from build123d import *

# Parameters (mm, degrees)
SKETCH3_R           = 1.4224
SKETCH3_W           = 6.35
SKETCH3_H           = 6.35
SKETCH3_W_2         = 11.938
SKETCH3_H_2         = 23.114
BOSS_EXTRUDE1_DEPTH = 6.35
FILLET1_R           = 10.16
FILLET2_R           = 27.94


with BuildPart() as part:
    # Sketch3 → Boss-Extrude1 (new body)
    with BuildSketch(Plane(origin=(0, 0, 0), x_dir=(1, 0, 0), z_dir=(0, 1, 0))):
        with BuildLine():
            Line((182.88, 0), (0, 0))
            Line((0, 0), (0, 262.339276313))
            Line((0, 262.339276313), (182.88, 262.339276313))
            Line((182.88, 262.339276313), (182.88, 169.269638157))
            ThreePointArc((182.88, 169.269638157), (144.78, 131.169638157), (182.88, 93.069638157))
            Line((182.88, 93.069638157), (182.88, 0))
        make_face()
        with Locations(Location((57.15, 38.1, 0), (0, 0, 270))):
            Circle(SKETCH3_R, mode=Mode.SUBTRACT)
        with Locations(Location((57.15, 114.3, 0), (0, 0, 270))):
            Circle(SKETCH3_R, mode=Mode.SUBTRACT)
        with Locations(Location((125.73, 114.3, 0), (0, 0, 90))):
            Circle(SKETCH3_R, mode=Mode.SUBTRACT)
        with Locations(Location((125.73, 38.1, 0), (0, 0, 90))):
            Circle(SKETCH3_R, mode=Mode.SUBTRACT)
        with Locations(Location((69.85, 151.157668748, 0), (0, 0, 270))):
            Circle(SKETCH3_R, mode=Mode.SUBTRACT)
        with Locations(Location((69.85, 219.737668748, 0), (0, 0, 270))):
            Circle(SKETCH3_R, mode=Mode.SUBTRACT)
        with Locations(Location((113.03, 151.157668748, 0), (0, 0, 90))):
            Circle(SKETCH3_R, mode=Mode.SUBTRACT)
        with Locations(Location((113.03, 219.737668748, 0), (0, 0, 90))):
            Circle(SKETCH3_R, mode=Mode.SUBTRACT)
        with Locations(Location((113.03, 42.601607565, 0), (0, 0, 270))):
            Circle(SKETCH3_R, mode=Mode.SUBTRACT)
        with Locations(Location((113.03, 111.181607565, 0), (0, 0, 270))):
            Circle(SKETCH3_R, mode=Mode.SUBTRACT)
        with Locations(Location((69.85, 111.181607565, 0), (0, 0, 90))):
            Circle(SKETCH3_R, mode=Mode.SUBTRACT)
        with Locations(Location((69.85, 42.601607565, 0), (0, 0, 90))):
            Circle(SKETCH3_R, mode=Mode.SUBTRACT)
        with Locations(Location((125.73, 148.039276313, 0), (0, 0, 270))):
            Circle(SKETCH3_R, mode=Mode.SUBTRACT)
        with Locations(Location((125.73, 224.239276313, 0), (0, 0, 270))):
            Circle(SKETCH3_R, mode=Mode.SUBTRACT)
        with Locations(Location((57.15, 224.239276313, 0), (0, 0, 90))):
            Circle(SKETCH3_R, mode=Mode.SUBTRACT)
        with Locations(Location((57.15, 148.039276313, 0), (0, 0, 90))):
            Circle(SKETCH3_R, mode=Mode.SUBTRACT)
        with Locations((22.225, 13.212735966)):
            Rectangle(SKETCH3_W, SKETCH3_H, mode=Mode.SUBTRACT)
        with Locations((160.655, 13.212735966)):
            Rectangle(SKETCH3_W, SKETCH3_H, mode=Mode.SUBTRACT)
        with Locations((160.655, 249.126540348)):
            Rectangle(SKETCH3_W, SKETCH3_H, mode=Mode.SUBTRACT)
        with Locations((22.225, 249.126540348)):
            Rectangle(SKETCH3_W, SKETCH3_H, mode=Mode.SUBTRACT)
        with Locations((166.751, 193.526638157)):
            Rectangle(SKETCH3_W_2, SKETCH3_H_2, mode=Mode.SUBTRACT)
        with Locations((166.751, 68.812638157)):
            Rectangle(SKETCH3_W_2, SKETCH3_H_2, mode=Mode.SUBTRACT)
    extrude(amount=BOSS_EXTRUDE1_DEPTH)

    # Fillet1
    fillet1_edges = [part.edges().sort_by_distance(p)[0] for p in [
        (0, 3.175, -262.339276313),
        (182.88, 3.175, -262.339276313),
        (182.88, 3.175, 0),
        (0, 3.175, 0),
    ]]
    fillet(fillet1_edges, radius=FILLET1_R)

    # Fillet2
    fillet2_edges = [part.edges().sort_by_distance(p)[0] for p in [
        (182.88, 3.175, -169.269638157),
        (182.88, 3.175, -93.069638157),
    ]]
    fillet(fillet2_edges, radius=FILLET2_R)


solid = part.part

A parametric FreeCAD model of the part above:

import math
import FreeCAD as App
import Part
import Sketcher
Q = App.Units.Quantity


def edges_at(feature, points):
    """Names of the edges that pass closest to the given points."""
    edges = feature.Shape.Edges
    near = lambda p: min(range(len(edges)), key=lambda i: edges[i].distToShape(Part.Vertex(*p))[0])
    return sorted({f"Edge{near(p) + 1}" for p in points})


def add_polygon(sketch, points):
    """Adds a closed chain of lines whose ends are joined by coincident constraints."""
    first, n = sketch.GeometryCount, len(points)
    for a, b in zip(points, points[1:] + points[:1]):
        sketch.addGeometry(Part.LineSegment(App.Vector(*a, 0), App.Vector(*b, 0)), False)
    for i in range(n):
        sketch.addConstraint(Sketcher.Constraint("Coincident", first + i, 2, first + (i + 1) % n, 1))

doc = App.newDocument("Part")
body = doc.addObject("PartDesign::Body", "Body")

sketch1 = body.newObject("Sketcher::SketchObject", "Sketch")
sketch1.AttachmentSupport = (doc.getObject("XZ_Plane"), [""])
sketch1.MapMode = "FlatFace"
sketch1.addGeometry(Part.LineSegment(App.Vector(0, 0, 0), App.Vector(182.9, 0, 0)), False)
sketch1.addGeometry(Part.LineSegment(App.Vector(182.9, 0, 0), App.Vector(182.9, -93.1, 0)), False)
sketch1.addGeometry(Part.ArcOfCircle(Part.Circle(App.Vector(182.9, -131.2, 0), App.Vector(0, 0, 1), 38.1), math.radians(90), math.radians(270)), False)
sketch1.addGeometry(Part.LineSegment(App.Vector(182.9, -169.3, 0), App.Vector(182.9, -262.3, 0)), False)
sketch1.addGeometry(Part.LineSegment(App.Vector(182.9, -262.3, 0), App.Vector(0, -262.3, 0)), False)
sketch1.addGeometry(Part.LineSegment(App.Vector(0, -262.3, 0), App.Vector(0, 0, 0)), False)
add_polygon(sketch1, [(157.5, -10), (157.5, -16.4), (163.8, -16.4), (163.8, -10)])
add_polygon(sketch1, [(160.8, -57.3), (160.8, -80.4), (172.7, -80.4), (172.7, -57.3)])
sketch1.addGeometry(Part.Circle(App.Vector(125.7, -38.1, 0), App.Vector(0, 0, 1), 1.4), False)
sketch1.addGeometry(Part.Circle(App.Vector(113, -42.6, 0), App.Vector(0, 0, 1), 1.4), False)
sketch1.addGeometry(Part.Circle(App.Vector(125.7, -114.3, 0), App.Vector(0, 0, 1), 1.4), False)
sketch1.addGeometry(Part.Circle(App.Vector(113, -111.2, 0), App.Vector(0, 0, 1), 1.4), False)
sketch1.addGeometry(Part.Circle(App.Vector(69.8, -42.6, 0), App.Vector(0, 0, 1), 1.4), False)
sketch1.addGeometry(Part.Circle(App.Vector(57.1, -38.1, 0), App.Vector(0, 0, 1), 1.4), False)
add_polygon(sketch1, [(19.1, -10), (19.1, -16.4), (25.4, -16.4), (25.4, -10)])
sketch1.addGeometry(Part.Circle(App.Vector(69.8, -111.2, 0), App.Vector(0, 0, 1), 1.4), False)
sketch1.addGeometry(Part.Circle(App.Vector(57.1, -114.3, 0), App.Vector(0, 0, 1), 1.4), False)
sketch1.addGeometry(Part.Circle(App.Vector(125.7, -148, 0), App.Vector(0, 0, 1), 1.4), False)
sketch1.addGeometry(Part.Circle(App.Vector(113, -151.2, 0), App.Vector(0, 0, 1), 1.4), False)
add_polygon(sketch1, [(160.8, -182), (160.8, -205.1), (172.7, -205.1), (172.7, -182)])
add_polygon(sketch1, [(157.5, -246), (157.5, -252.3), (163.8, -252.3), (163.8, -246)])
sketch1.addGeometry(Part.Circle(App.Vector(113, -219.7, 0), App.Vector(0, 0, 1), 1.4), False)
sketch1.addGeometry(Part.Circle(App.Vector(125.7, -224.2, 0), App.Vector(0, 0, 1), 1.4), False)
sketch1.addGeometry(Part.Circle(App.Vector(69.8, -151.2, 0), App.Vector(0, 0, 1), 1.4), False)
sketch1.addGeometry(Part.Circle(App.Vector(57.1, -148, 0), App.Vector(0, 0, 1), 1.4), False)
sketch1.addGeometry(Part.Circle(App.Vector(69.8, -219.7, 0), App.Vector(0, 0, 1), 1.4), False)
sketch1.addGeometry(Part.Circle(App.Vector(57.1, -224.2, 0), App.Vector(0, 0, 1), 1.4), False)
add_polygon(sketch1, [(19.1, -246), (19.1, -252.3), (25.4, -252.3), (25.4, -246)])
sketch1.addConstraint([
    Sketcher.Constraint("Coincident", 0, 2, 1, 1),
    Sketcher.Constraint("Coincident", 1, 2, 2, 1),
    Sketcher.Constraint("Coincident", 2, 2, 3, 1),
    Sketcher.Constraint("Coincident", 3, 2, 4, 1),
    Sketcher.Constraint("Coincident", 4, 2, 5, 1),
    Sketcher.Constraint("Coincident", 5, 2, 0, 1),
    Sketcher.Constraint("Horizontal", 0),
    Sketcher.Constraint("Vertical", 1),
    Sketcher.Constraint("Vertical", 3),
    Sketcher.Constraint("Horizontal", 4),
    Sketcher.Constraint("Vertical", 5),
    Sketcher.Constraint("Vertical", 6),
    Sketcher.Constraint("Horizontal", 7),
    Sketcher.Constraint("Vertical", 8),
    Sketcher.Constraint("Horizontal", 9),
    Sketcher.Constraint("Vertical", 10),
    Sketcher.Constraint("Horizontal", 11),
    Sketcher.Constraint("Vertical", 12),
    Sketcher.Constraint("Horizontal", 13),
    Sketcher.Constraint("Vertical", 20),
    Sketcher.Constraint("Horizontal", 21),
    Sketcher.Constraint("Vertical", 22),
    Sketcher.Constraint("Horizontal", 23),
    Sketcher.Constraint("Vertical", 28),
    Sketcher.Constraint("Horizontal", 29),
    Sketcher.Constraint("Vertical", 30),
    Sketcher.Constraint("Horizontal", 31),
    Sketcher.Constraint("Vertical", 32),
    Sketcher.Constraint("Horizontal", 33),
    Sketcher.Constraint("Vertical", 34),
    Sketcher.Constraint("Horizontal", 35),
    Sketcher.Constraint("Vertical", 42),
    Sketcher.Constraint("Horizontal", 43),
    Sketcher.Constraint("Vertical", 44),
    Sketcher.Constraint("Horizontal", 45),
    Sketcher.Constraint("Coincident", 5, 2, -1, 1),
    Sketcher.Constraint("Equal", 14, 15),
    Sketcher.Constraint("Equal", 15, 16),
    Sketcher.Constraint("Equal", 16, 17),
    Sketcher.Constraint("Equal", 17, 18),
    Sketcher.Constraint("Equal", 18, 19),
    Sketcher.Constraint("Equal", 19, 24),
    Sketcher.Constraint("Equal", 24, 25),
    Sketcher.Constraint("Equal", 25, 26),
    Sketcher.Constraint("Equal", 26, 27),
    Sketcher.Constraint("Equal", 27, 36),
    Sketcher.Constraint("Equal", 36, 37),
    Sketcher.Constraint("Equal", 37, 38),
    Sketcher.Constraint("Equal", 38, 39),
    Sketcher.Constraint("Equal", 39, 40),
    Sketcher.Constraint("Equal", 40, 41),
    Sketcher.Constraint("Horizontal", 15, 3, 18, 3),
    Sketcher.Constraint("Horizontal", 14, 3, 19, 3),
    Sketcher.Constraint("Horizontal", 17, 3, 24, 3),
    Sketcher.Constraint("Horizontal", 16, 3, 25, 3),
    Sketcher.Constraint("Horizontal", 27, 3, 38, 3),
    Sketcher.Constraint("Horizontal", 26, 3, 39, 3),
    Sketcher.Constraint("Horizontal", 36, 3, 40, 3),
    Sketcher.Constraint("Horizontal", 37, 3, 41, 3),
    Sketcher.Constraint("Horizontal", 7, 2, 20, 2),
    Sketcher.Constraint("Horizontal", 9, 2, 22, 2),
    Sketcher.Constraint("Horizontal", 33, 2, 42, 2),
    Sketcher.Constraint("Horizontal", 35, 2, 44, 2),
    Sketcher.Constraint("Vertical", 14, 3, 16, 3),
    Sketcher.Constraint("Vertical", 15, 3, 17, 3),
    Sketcher.Constraint("Vertical", 18, 3, 24, 3),
    Sketcher.Constraint("Vertical", 19, 3, 25, 3),
    Sketcher.Constraint("Vertical", 16, 3, 26, 3),
    Sketcher.Constraint("Vertical", 17, 3, 27, 3),
    Sketcher.Constraint("Vertical", 27, 3, 36, 3),
    Sketcher.Constraint("Vertical", 26, 3, 37, 3),
    Sketcher.Constraint("Vertical", 24, 3, 38, 3),
    Sketcher.Constraint("Vertical", 25, 3, 39, 3),
    Sketcher.Constraint("Vertical", 38, 3, 40, 3),
    Sketcher.Constraint("Vertical", 39, 3, 41, 3),
    Sketcher.Constraint("Vertical", 2, 3, 0, 2),
    Sketcher.Constraint("Vertical", 1, 2, 2, 2),
    Sketcher.Constraint("Vertical", 13, 2, 28, 2),
    Sketcher.Constraint("Vertical", 12, 2, 29, 2),
    Sketcher.Constraint("Vertical", 9, 2, 32, 2),
    Sketcher.Constraint("Vertical", 8, 2, 33, 2),
    Sketcher.Constraint("Vertical", 23, 2, 42, 2),
    Sketcher.Constraint("Vertical", 22, 2, 43, 2),
    Sketcher.Constraint("Equal", 9, 21),
    Sketcher.Constraint("Equal", 1, 3),
    Sketcher.Constraint("Equal", 45, 6),
    Sketcher.Constraint("Equal", 12, 28),
    Sketcher.Constraint("Equal", 22, 32),
    Sketcher.Constraint("Radius", 2, Q("1.5 in")),
    Sketcher.Constraint("Diameter", 14, Q("0.112 in")),
    Sketcher.Constraint("DistanceX", 0, 1, 0, 2, Q("7.2 in")),
    Sketcher.Constraint("DistanceX", -1, 1, 21, 2, Q("1 in")),
    Sketcher.Constraint("DistanceY", 16, 3, 14, 3, Q("3 in")),
    Sketcher.Constraint("DistanceY", 37, 3, 26, 3, Q("3 in")),
    Sketcher.Constraint("DistanceX", 6, 2, 0, 2, Q("1 in")),
    Sketcher.Constraint("DistanceX", 15, 3, 7, 2, Q("2 in")),
    Sketcher.Constraint("DistanceY", 2, 3, 10, 2, Q("2 in")),
    Sketcher.Constraint("DistanceX", 20, 2, 18, 3, Q("2 in")),
    Sketcher.Constraint("DistanceY", 30, 2, 2, 3, Q("2 in")),
    Sketcher.Constraint("DistanceX", 7, 1, 7, 2, Q("0.25 in")),
    Sketcher.Constraint("DistanceX", 11, 1, 11, 2, Q("0.47 in")),
    Sketcher.Constraint("DistanceY", 10, 2, 10, 1, Q("0.91 in")),
    Sketcher.Constraint("DistanceY", 14, 3, -1, 1, Q("1.5 in")),
    Sketcher.Constraint("DistanceX", -1, 1, 11, 2, Q("6.8 in")),
    Sketcher.Constraint("DistanceX", 15, 3, 14, 3, Q("0.5 in")),
    Sketcher.Constraint("DistanceY", 17, 3, 15, 3, Q("2.7 in")),
    Sketcher.Constraint("DistanceX", 19, 3, 18, 3, Q("0.5 in")),
    Sketcher.Constraint("DistanceY", 36, 3, 27, 3, Q("2.7 in")),
    Sketcher.Constraint("DistanceY", 3, 2, 37, 3, Q("1.5 in")),
    Sketcher.Constraint("DistanceY", 1, 2, 1, 1, 93.069638),
    Sketcher.Constraint("DistanceY", 27, 3, -1, 1, 151.157669),
    Sketcher.Constraint("DistanceY", 32, 2, -1, 1, 252.30154),
    Sketcher.Constraint("DistanceY", 2, 3, 15, 3, 88.568031),
    Sketcher.Constraint("DistanceY", 15, 3, 6, 2, 26.213872),
])
pad1 = body.newObject("PartDesign::Pad", "Pad")
pad1.Profile = sketch1
pad1.Length = Q("0.25 in")
pad1.Reversed = True
doc.recompute()

fillet = body.newObject("PartDesign::Fillet", "Fillet")
fillet.Base = (pad1, edges_at(pad1, [
    (0, 3.175, -262.339),
    (182.88, 3.175, -262.339),
    (182.88, 3.175, 0),
    (0, 3.175, 0),
]))
fillet.Radius = Q("0.4 in")
doc.recompute()

fillet2 = body.newObject("PartDesign::Fillet", "Fillet001")
fillet2.Base = (fillet, edges_at(fillet, [(182.88, 3.175, -169.27), (182.88, 3.175, -93.07)]))
fillet2.Radius = Q("1.1 in")

doc.recompute()
